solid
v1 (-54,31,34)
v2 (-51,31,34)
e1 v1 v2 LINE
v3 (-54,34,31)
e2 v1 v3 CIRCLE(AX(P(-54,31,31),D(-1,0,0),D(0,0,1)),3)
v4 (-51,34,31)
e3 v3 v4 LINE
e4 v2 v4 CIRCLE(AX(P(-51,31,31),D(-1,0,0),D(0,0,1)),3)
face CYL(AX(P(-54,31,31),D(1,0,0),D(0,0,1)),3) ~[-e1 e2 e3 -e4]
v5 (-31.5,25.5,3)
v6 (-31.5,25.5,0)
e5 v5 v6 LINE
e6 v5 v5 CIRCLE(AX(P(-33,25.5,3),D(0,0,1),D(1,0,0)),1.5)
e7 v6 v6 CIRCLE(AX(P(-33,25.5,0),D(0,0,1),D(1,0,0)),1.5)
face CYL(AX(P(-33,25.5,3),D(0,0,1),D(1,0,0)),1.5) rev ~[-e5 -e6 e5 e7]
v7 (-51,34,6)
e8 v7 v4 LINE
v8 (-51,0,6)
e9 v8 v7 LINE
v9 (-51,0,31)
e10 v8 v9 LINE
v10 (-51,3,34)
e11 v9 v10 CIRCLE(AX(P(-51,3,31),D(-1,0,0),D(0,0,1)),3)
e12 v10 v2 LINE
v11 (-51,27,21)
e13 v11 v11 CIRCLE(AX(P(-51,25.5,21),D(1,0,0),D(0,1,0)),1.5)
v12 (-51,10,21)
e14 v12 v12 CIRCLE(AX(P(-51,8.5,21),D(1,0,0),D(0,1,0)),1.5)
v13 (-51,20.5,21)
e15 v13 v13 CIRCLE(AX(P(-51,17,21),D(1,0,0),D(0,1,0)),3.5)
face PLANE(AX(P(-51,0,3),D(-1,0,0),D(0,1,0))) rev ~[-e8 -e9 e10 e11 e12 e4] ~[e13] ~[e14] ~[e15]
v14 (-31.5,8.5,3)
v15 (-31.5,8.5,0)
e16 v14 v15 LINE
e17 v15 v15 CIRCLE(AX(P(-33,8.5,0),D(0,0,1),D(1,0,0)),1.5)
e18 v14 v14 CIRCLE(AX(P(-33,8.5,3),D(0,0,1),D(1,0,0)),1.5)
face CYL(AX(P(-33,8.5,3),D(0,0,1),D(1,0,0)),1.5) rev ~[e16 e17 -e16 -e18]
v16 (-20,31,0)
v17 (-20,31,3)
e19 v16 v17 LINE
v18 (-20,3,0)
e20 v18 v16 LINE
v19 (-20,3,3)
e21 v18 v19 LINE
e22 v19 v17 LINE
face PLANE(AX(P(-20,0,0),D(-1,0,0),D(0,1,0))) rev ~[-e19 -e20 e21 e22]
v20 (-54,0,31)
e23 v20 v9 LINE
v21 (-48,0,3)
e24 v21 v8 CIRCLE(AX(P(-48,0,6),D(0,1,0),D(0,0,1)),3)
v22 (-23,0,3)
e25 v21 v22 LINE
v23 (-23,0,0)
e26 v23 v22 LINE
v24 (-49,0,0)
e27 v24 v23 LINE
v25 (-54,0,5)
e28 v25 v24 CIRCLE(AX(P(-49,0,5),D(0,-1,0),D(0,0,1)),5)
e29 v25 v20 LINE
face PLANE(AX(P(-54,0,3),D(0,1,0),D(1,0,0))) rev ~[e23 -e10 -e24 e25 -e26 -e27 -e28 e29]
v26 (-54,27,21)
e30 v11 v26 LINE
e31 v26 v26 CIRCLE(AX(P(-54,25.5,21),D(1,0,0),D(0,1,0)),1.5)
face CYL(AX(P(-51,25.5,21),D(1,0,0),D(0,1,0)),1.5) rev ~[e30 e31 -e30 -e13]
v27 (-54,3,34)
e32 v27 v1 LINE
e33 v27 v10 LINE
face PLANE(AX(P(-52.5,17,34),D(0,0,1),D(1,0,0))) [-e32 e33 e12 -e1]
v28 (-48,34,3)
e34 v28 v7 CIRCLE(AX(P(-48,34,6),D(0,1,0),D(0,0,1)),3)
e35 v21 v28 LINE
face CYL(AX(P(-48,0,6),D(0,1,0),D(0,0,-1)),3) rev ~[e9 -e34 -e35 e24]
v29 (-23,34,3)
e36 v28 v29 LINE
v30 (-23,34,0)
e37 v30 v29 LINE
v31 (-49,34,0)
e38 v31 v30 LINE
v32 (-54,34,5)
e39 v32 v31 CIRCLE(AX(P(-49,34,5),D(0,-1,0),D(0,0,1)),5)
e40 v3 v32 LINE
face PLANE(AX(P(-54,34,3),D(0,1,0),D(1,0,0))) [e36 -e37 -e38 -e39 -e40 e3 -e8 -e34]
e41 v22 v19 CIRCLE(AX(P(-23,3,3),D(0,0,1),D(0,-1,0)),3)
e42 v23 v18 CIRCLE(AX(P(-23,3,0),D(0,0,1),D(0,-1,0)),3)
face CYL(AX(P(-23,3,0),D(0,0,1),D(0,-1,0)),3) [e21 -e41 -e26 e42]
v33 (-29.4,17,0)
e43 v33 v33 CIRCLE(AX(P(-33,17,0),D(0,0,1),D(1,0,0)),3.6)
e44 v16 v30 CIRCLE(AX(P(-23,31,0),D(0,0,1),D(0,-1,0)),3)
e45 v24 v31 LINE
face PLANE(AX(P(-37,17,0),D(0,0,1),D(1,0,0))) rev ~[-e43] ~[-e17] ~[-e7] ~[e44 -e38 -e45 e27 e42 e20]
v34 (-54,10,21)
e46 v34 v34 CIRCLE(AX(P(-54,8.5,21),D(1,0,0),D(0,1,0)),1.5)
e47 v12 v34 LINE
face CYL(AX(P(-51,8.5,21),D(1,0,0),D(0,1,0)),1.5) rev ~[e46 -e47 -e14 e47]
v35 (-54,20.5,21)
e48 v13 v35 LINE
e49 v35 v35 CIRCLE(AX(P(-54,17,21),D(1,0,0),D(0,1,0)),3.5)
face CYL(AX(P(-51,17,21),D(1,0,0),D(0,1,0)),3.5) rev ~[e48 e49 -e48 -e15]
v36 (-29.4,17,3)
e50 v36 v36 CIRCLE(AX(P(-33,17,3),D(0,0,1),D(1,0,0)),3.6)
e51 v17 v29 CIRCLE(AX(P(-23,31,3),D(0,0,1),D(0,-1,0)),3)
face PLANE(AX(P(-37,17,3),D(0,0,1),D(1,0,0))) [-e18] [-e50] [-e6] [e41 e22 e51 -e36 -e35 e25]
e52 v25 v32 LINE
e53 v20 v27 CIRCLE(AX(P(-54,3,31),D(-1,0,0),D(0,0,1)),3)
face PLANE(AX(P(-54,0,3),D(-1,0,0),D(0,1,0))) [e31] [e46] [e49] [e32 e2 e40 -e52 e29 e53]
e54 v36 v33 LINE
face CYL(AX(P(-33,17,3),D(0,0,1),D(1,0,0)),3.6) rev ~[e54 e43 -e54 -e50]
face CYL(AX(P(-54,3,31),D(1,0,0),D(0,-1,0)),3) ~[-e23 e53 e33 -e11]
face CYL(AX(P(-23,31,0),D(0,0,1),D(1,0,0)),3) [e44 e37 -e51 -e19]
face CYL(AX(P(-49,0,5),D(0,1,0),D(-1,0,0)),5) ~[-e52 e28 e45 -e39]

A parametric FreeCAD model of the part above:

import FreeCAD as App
import Part
import Sketcher

V = App.Vector
Q = App.Units.Quantity


def edges_at(feature, points):
    """Names of the edges that pass closest to the given points."""
    edges = feature.Shape.Edges
    near = lambda p: min(range(len(edges)), key=lambda i: edges[i].distToShape(Part.Vertex(*p))[0])
    return sorted({f"Edge{near(p) + 1}" for p in points})


def add_polygon(sketch, points):
    """Adds a closed chain of lines whose ends are joined by coincident constraints."""
    first, n = sketch.GeometryCount, len(points)
    for a, b in zip(points, points[1:] + points[:1]):
        sketch.addGeometry(Part.LineSegment(App.Vector(*a, 0), App.Vector(*b, 0)), False)
    for i in range(n):
        sketch.addConstraint(Sketcher.Constraint("Coincident", first + i, 2, first + (i + 1) % n, 1))

doc = App.newDocument("Part")
body = doc.addObject("PartDesign::Body", "Body")

# Sketch on XY plane
sketch1 = body.newObject("Sketcher::SketchObject", "Sketch")
sketch1.AttachmentSupport = (doc.getObject("XY_Plane"), [""])
sketch1.MapMode = "FlatFace"
add_polygon(sketch1, [(-54, 34), (-54, 0), (-20, 0), (-20, 34)])  # lines 0-3
sketch1.addConstraint(Sketcher.Constraint("Vertical", 0))
sketch1.addConstraint(Sketcher.Constraint("Horizontal", 1))
sketch1.addConstraint(Sketcher.Constraint("Vertical", 2))
sketch1.addConstraint(Sketcher.Constraint("Horizontal", 3))
sketch1.addConstraint(Sketcher.Constraint("PointOnObject", 0, 2, -1))
sketch1.addConstraint(Sketcher.Constraint("Equal", 3, 0))
sketch1.addConstraint(Sketcher.Constraint("DistanceX", 1, 1, 1, 2, Q("34 mm")))
sketch1.addConstraint(Sketcher.Constraint("DistanceX", 0, 2, -1, 1, Q("54 mm")))
pad1 = body.newObject("PartDesign::Pad", "Pad")
pad1.Profile = sketch1
pad1.Length = 3

# Sketch on XY plane
sketch2 = body.newObject("Sketcher::SketchObject", "Sketch001")
sketch2.AttachmentSupport = (doc.getObject("XY_Plane"), [""])
sketch2.MapMode = "FlatFace"
sketch2.AttachmentOffset = App.Placement(V(0, 0, 3), App.Rotation())
add_polygon(sketch2, [(-54, 34), (-54, 0), (-51, 0), (-51, 34)])  # lines 0-3
sketch2.addConstraint(Sketcher.Constraint("Vertical", 0))
sketch2.addConstraint(Sketcher.Constraint("Horizontal", 1))
sketch2.addConstraint(Sketcher.Constraint("Vertical", 2))
sketch2.addConstraint(Sketcher.Constraint("Horizontal", 3))
sketch2.addConstraint(Sketcher.Constraint("PointOnObject", 0, 2, -1))
sketch2.addConstraint(Sketcher.Constraint("DistanceX", 1, 1, 1, 2, Q("3 mm")))
sketch2.addConstraint(Sketcher.Constraint("DistanceY", 0, 2, 0, 1, Q("34 mm")))
sketch2.addConstraint(Sketcher.Constraint("DistanceX", 0, 2, -1, 1, Q("54 mm")))
pad2 = body.newObject("PartDesign::Pad", "Pad001")
pad2.Profile = sketch2
pad2.Length = 31
doc.recompute()

fillet = body.newObject("PartDesign::Fillet", "Fillet")
fillet.Base = (pad2, edges_at(pad2, [(-51, 17, 3)]))
fillet.Radius = 3
doc.recompute()

fillet2 = body.newObject("PartDesign::Fillet", "Fillet001")
fillet2.Base = (fillet, edges_at(fillet, [(-54, 17, 0)]))
fillet2.Radius = 5

# Sketch on XY plane
sketch3 = body.newObject("Sketcher::SketchObject", "Sketch002")
sketch3.AttachmentSupport = (doc.getObject("XY_Plane"), [""])
sketch3.MapMode = "FlatFace"
sketch3.AttachmentOffset = App.Placement(V(0, 0, 3), App.Rotation())
sketch3.addGeometry(Part.Circle(V(-33, 8.5, 0), V(0, 0, 1), 1.5), False)
sketch3.addGeometry(Part.Circle(V(-33, 25.5, 0), V(0, 0, 1), 1.5), False)
sketch3.addGeometry(Part.Circle(V(-33, 17, 0), V(0, 0, 1), 3.6), False)
sketch3.addConstraint(Sketcher.Constraint("Equal", 0, 1))
sketch3.addConstraint(Sketcher.Constraint("Vertical", 0, 3, 1, 3))
sketch3.addConstraint(Sketcher.Constraint("Vertical", 1, 3, 2, 3))
sketch3.addConstraint(Sketcher.Constraint("Diameter", 0, Q("3 mm")))
sketch3.addConstraint(Sketcher.Constraint("Diameter", 2, Q("7.2 mm")))
sketch3.addConstraint(Sketcher.Constraint("DistanceX", 0, 3, -1, 1, Q("33 mm")))
sketch3.addConstraint(Sketcher.Constraint("DistanceY", -1, 1, 2, 3, Q("17 mm")))
sketch3.addConstraint(Sketcher.Constraint("DistanceY", 0, 3, 1, 3, Q("17 mm")))
sketch3.addConstraint(Sketcher.Constraint("DistanceY", -1, 1, 0, 3, Q("8.5 mm")))
pocket1 = body.newObject("PartDesign::Pocket", "Pocket")
pocket1.Profile = sketch3
pocket1.Length = 5
doc.recompute()

fillet3 = body.newObject("PartDesign::Fillet", "Fillet002")
fillet3.Base = (pocket1, edges_at(pocket1, [(-20, 34, 1.5), (-20, 0, 1.5)]))
fillet3.Radius = 3

# Sketch on YZ plane
sketch4 = body.newObject("Sketcher::SketchObject", "Sketch003")
sketch4.AttachmentSupport = (doc.getObject("YZ_Plane"), [""])
sketch4.MapMode = "FlatFace"
sketch4.AttachmentOffset = App.Placement(V(0, 0, -51), App.Rotation())
sketch4.addGeometry(Part.Circle(V(8.5, 21, 0), V(0, 0, 1), 1.5), False)
sketch4.addGeometry(Part.Circle(V(25.5, 21, 0), V(0, 0, 1), 1.5), False)
sketch4.addGeometry(Part.Circle(V(17, 21, 0), V(0, 0, 1), 3.5), False)
sketch4.addConstraint(Sketcher.Constraint("Equal", 0, 1))
sketch4.addConstraint(Sketcher.Constraint("Horizontal", 0, 3, 1, 3))
sketch4.addConstraint(Sketcher.Constraint("Horizontal", 1, 3, 2, 3))
sketch4.addConstraint(Sketcher.Constraint("Diameter", 0, Q("3 mm")))
sketch4.addConstraint(Sketcher.Constraint("Diameter", 2, Q("7 mm")))
sketch4.addConstraint(Sketcher.Constraint("DistanceY", -1, 1, 0, 3, Q("21 mm")))
sketch4.addConstraint(Sketcher.Constraint("DistanceX", -1, 1, 2, 3, Q("17 mm")))
sketch4.addConstraint(Sketcher.Constraint("DistanceX", 0, 3, 1, 3, Q("17 mm")))
sketch4.addConstraint(Sketcher.Constraint("DistanceX", -1, 1, 0, 3, Q("8.5 mm")))
pocket2 = body.newObject("PartDesign::Pocket", "Pocket001")
pocket2.Profile = sketch4
pocket2.Length = 5
doc.recompute()

fillet4 = body.newObject("PartDesign::Fillet", "Fillet003")
fillet4.Base = (pocket2, edges_at(pocket2, [(-52.5, 34, 34), (-52.5, 0, 34)]))
fillet4.Radius = 3

doc.recompute()
